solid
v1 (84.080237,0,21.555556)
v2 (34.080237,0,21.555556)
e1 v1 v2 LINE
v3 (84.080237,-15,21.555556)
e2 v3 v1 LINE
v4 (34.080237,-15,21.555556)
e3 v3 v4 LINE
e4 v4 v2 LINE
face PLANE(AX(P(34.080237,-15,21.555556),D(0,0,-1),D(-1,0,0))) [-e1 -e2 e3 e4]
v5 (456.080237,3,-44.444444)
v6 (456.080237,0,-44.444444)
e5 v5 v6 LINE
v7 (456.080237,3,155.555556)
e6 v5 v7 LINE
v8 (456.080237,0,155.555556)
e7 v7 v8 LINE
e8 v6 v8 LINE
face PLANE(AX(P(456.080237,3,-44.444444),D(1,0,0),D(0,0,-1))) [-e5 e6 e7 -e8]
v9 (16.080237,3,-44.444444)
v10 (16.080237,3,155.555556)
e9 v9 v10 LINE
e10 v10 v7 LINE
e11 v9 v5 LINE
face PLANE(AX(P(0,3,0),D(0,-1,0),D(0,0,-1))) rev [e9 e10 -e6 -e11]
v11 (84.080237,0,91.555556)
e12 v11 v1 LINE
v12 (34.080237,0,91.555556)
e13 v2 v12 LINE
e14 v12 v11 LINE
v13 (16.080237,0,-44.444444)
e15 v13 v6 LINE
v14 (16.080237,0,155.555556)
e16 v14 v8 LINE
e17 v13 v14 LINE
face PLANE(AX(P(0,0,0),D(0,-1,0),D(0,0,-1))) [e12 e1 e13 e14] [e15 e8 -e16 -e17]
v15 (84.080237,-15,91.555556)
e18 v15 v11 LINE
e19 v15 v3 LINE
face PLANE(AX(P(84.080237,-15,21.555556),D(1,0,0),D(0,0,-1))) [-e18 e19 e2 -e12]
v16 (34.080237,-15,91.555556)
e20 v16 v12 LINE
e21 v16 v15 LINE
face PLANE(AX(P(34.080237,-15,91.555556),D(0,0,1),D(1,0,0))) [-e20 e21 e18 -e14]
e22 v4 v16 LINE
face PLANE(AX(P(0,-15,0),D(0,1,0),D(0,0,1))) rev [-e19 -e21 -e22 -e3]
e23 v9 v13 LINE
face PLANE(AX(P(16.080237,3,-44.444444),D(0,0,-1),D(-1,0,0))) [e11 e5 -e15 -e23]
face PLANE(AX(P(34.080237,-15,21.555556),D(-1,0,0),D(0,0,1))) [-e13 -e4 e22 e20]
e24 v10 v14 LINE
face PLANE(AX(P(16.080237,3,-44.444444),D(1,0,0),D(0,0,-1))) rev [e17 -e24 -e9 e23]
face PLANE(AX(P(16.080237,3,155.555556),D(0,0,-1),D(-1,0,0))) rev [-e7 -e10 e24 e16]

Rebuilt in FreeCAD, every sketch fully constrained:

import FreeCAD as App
import Part
import Sketcher

V = App.Vector

doc = App.newDocument("Part")
params = doc.addObject("Spreadsheet::Sheet", "Params")
for row, (alias, value) in enumerate([
    ("sketch1_width", "440 mm"),
    ("sketch1_height", "200 mm"),
    ("pad1_length", "3 mm"),
    ("sketch2_width", "50 mm"),
    ("sketch2_height", "70 mm"),
    ("pad2_length", "15 mm"),
], start=1):
    params.set(f"A{row}", alias)
    params.set(f"B{row}", "=" + value)
    params.setAlias(f"B{row}", alias)

body = doc.addObject("PartDesign::Body", "Body")

# Sketch on XZ plane
sketch1 = body.newObject("Sketcher::SketchObject", "Sketch")
sketch1.AttachmentSupport = (doc.getObject("XZ_Plane"), [""])
sketch1.MapMode = "FlatFace"
sketch1.addGeometry(Part.LineSegment(V(16, -44, 0), V(16, 156, 0)), False)
sketch1.addGeometry(Part.LineSegment(V(16, 156, 0), V(456, 156, 0)), False)
sketch1.addGeometry(Part.LineSegment(V(456, 156, 0), V(456, -44, 0)), False)
sketch1.addGeometry(Part.LineSegment(V(456, -44, 0), V(16, -44, 0)), False)
sketch1.addConstraint(Sketcher.Constraint("Coincident", 0, 2, 1, 1))
sketch1.addConstraint(Sketcher.Constraint("Coincident", 1, 2, 2, 1))
sketch1.addConstraint(Sketcher.Constraint("Coincident", 2, 2, 3, 1))
sketch1.addConstraint(Sketcher.Constraint("Coincident", 3, 2, 0, 1))
sketch1.addConstraint(Sketcher.Constraint("Vertical", 0))
sketch1.addConstraint(Sketcher.Constraint("Horizontal", 1))
sketch1.addConstraint(Sketcher.Constraint("Vertical", 2))
sketch1.addConstraint(Sketcher.Constraint("Horizontal", 3))
sketch1.addConstraint(Sketcher.Constraint("DistanceX", 1, 1, 1, 2, 440.0))
sketch1.addConstraint(Sketcher.Constraint("DistanceY", 0, 1, 0, 2, 200.0))
sketch1.addConstraint(Sketcher.Constraint("DistanceX", -1, 1, 0, 2, 16.080237))
sketch1.addConstraint(Sketcher.Constraint("DistanceY", -1, 1, 0, 2, 155.555556))
sketch1.setExpression("Constraints[8]", "Params.sketch1_width")
sketch1.setExpression("Constraints[9]", "Params.sketch1_height")
pad1 = body.newObject("PartDesign::Pad", "Pad")
pad1.Profile = sketch1
pad1.setExpression("Length", "Params.pad1_length")
pad1.Reversed = True

# Sketch on XZ plane
sketch2 = body.newObject("Sketcher::SketchObject", "Sketch001")
sketch2.AttachmentSupport = (doc.getObject("XZ_Plane"), [""])
sketch2.MapMode = "FlatFace"
sketch2.addGeometry(Part.LineSegment(V(34, 22, 0), V(34, 92, 0)), False)
sketch2.addGeometry(Part.LineSegment(V(34, 92, 0), V(84, 92, 0)), False)
sketch2.addGeometry(Part.LineSegment(V(84, 92, 0), V(84, 22, 0)), False)
sketch2.addGeometry(Part.LineSegment(V(84, 22, 0), V(34, 22, 0)), False)
sketch2.addConstraint(Sketcher.Constraint("Coincident", 0, 2, 1, 1))
sketch2.addConstraint(Sketcher.Constraint("Coincident", 1, 2, 2, 1))
sketch2.addConstraint(Sketcher.Constraint("Coincident", 2, 2, 3, 1))
sketch2.addConstraint(Sketcher.Constraint("Coincident", 3, 2, 0, 1))
sketch2.addConstraint(Sketcher.Constraint("Vertical", 0))
sketch2.addConstraint(Sketcher.Constraint("Horizontal", 1))
sketch2.addConstraint(Sketcher.Constraint("Vertical", 2))
sketch2.addConstraint(Sketcher.Constraint("Horizontal", 3))
sketch2.addConstraint(Sketcher.Constraint("DistanceX", 1, 1, 1, 2, 50.0))
sketch2.addConstraint(Sketcher.Constraint("DistanceY", 0, 1, 0, 2, 70.0))
sketch2.addConstraint(Sketcher.Constraint("DistanceX", -1, 1, 0, 2, 34.080237))
sketch2.addConstraint(Sketcher.Constraint("DistanceY", -1, 1, 0, 2, 91.555556))
sketch2.setExpression("Constraints[8]", "Params.sketch2_width")
sketch2.setExpression("Constraints[9]", "Params.sketch2_height")
pad2 = body.newObject("PartDesign::Pad", "Pad001")
pad2.Profile = sketch2
pad2.setExpression("Length", "Params.pad2_length")

doc.recompute()
